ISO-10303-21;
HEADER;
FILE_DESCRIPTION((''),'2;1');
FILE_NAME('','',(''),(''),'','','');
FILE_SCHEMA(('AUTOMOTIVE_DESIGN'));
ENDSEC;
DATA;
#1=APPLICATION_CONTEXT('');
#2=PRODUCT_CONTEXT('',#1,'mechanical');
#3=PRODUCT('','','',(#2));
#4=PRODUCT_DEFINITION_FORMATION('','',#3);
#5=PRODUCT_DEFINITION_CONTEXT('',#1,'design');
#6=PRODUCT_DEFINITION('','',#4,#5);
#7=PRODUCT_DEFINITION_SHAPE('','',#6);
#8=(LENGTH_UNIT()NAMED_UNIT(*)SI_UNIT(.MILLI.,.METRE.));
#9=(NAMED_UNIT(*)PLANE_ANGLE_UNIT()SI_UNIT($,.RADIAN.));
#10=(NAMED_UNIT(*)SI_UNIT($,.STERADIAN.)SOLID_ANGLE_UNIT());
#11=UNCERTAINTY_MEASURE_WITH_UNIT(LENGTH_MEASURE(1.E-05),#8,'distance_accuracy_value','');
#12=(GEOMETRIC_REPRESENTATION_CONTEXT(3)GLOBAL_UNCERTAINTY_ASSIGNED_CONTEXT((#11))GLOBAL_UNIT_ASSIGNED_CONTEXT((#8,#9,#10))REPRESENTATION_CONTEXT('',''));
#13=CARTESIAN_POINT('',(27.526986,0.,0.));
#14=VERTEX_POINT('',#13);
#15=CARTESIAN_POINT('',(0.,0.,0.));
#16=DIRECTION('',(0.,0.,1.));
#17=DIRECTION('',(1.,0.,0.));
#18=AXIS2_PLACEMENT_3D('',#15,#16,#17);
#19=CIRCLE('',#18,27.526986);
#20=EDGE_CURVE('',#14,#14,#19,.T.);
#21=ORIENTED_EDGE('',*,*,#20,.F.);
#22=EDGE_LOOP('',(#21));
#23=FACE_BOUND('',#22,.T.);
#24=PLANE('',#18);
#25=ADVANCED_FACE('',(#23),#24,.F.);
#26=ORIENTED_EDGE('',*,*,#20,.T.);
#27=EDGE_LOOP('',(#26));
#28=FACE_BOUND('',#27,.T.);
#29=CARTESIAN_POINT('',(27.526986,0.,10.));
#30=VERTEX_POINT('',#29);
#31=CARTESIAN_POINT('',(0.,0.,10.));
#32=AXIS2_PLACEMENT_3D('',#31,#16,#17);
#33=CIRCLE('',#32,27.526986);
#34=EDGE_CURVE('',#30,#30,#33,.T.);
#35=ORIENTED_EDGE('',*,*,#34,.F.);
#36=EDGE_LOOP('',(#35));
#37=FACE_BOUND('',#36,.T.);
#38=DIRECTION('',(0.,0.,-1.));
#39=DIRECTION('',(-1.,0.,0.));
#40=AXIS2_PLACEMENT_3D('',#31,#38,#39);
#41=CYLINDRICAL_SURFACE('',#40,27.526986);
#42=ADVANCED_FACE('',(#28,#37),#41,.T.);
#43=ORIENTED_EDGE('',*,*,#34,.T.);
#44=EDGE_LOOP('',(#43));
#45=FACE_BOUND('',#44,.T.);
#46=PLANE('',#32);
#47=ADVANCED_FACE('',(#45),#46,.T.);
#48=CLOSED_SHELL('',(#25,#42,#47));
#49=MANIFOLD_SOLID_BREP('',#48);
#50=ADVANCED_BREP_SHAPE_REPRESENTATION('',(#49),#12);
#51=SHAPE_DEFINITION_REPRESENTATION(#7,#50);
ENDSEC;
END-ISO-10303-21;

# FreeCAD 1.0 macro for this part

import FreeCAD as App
import Part
import Sketcher

V = App.Vector
Q = App.Units.Quantity

doc = App.newDocument("Part")
body = doc.addObject("PartDesign::Body", "Body")

sketch1 = doc.addObject("Sketcher::SketchObject", "Sketch")
body.addObject(sketch1)
sketch1.AttachmentSupport = (doc.XY_Plane, [""])
sketch1.MapMode = "FlatFace"
sketch1.addGeometry(Part.Circle(V(0, 0, 0), V(0, 0, 1), 27.526986), False)
sketch1.addConstraint([
    Sketcher.Constraint("Coincident", 0, 3, -1, 1),
    Sketcher.Constraint("Diameter", 0, Q("55.053973 mm")),
])
pad1 = doc.addObject("PartDesign::Pad", "Pad")
body.addObject(pad1)
pad1.Profile = sketch1
pad1.Length = 10

doc.recompute()
